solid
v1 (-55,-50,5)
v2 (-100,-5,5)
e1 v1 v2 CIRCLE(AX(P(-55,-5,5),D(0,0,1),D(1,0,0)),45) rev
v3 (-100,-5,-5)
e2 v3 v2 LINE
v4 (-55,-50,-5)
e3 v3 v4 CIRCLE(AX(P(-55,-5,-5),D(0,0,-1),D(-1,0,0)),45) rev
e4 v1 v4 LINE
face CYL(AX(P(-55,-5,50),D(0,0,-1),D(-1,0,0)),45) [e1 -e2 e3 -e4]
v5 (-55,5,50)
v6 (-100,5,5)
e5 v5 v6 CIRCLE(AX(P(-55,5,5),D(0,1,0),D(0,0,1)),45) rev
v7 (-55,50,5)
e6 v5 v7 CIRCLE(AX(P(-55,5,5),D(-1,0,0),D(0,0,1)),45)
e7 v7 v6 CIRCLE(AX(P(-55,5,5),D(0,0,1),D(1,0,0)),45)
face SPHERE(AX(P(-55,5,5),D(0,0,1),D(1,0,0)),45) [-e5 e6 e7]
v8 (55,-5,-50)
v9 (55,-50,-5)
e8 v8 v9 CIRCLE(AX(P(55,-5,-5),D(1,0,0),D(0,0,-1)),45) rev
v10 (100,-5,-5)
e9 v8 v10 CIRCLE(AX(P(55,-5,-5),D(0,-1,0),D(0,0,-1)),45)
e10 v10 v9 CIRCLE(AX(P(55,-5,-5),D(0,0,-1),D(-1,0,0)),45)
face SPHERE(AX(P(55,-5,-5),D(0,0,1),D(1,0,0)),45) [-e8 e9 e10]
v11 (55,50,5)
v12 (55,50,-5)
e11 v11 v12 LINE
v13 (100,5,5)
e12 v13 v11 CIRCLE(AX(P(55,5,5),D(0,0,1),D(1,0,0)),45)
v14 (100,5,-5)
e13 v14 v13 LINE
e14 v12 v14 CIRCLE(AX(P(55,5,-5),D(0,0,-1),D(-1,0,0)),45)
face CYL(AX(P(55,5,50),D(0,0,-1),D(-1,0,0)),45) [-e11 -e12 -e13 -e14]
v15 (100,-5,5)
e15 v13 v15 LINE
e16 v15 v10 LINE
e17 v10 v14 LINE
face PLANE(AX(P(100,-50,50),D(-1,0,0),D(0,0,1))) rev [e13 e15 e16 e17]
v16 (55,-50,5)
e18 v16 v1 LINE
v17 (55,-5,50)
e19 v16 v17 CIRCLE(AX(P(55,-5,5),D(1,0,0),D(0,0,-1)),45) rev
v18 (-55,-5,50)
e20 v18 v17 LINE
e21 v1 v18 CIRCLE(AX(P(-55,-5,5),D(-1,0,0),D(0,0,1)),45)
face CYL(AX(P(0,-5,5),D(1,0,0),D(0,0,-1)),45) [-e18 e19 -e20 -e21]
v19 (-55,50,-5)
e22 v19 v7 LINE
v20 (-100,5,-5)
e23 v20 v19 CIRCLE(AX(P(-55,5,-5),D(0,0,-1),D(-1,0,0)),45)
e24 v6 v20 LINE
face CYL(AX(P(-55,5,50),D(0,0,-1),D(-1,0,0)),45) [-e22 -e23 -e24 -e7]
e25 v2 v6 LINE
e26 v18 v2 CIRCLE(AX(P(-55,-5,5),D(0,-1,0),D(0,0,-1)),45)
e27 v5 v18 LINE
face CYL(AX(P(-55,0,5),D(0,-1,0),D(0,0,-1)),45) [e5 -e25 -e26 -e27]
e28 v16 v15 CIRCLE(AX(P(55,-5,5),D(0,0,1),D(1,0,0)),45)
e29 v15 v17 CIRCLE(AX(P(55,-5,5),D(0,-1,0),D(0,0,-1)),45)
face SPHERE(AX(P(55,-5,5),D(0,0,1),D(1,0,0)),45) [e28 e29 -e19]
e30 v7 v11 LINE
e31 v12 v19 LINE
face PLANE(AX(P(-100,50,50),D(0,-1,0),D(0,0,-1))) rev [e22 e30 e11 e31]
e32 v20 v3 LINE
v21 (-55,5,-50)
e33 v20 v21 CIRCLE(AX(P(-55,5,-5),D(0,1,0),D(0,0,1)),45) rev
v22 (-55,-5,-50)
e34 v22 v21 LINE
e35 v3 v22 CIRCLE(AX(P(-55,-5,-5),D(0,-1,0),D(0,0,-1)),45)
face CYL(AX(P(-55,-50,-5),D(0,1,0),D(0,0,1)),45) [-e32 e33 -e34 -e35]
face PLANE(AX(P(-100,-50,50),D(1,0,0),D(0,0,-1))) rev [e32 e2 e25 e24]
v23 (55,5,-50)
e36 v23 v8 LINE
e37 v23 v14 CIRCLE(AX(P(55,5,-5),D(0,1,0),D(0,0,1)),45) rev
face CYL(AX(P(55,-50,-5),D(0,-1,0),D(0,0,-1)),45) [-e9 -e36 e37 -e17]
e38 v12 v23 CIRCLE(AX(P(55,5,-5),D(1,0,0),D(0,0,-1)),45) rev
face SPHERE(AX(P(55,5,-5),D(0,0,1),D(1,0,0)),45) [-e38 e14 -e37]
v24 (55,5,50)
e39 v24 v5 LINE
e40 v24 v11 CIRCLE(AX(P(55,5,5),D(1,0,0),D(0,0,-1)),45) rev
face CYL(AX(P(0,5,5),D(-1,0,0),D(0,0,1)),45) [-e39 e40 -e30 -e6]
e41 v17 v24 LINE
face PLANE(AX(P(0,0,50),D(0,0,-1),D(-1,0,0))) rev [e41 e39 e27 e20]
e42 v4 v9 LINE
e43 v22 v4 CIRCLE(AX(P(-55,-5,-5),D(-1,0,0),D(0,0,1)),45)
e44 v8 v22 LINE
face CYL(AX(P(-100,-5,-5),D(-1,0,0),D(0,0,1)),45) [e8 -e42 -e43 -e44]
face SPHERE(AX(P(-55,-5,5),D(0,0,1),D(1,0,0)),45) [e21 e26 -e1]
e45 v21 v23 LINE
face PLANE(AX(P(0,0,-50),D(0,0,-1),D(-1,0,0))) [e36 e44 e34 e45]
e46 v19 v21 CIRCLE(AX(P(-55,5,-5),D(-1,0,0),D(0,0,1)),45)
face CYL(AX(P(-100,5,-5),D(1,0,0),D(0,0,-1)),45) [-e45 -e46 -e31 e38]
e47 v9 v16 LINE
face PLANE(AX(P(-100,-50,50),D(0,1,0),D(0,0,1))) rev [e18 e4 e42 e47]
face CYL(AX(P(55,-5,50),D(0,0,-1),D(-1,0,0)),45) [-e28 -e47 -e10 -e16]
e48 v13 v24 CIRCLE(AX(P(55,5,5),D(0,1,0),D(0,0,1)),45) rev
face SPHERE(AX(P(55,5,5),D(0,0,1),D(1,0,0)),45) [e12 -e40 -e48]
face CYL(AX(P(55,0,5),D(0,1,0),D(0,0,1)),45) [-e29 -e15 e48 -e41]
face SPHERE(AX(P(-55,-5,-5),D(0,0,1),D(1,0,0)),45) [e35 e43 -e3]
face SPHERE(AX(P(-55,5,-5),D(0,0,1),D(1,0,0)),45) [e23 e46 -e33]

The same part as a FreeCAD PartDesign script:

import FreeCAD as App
import Part
import Sketcher

V = App.Vector
Q = App.Units.Quantity

doc = App.newDocument("Part")
body = doc.addObject("PartDesign::Body", "Body")

sketch1 = body.newObject("Sketcher::SketchObject", "Sketch")
sketch1.AttachmentSupport = (doc.getObject("XY_Plane"), [""])
sketch1.MapMode = "FlatFace"
sketch1.addGeometry([
    Part.LineSegment(V(-100, 50, 0), V(-100, -50, 0)),
    Part.LineSegment(V(-100, -50, 0), V(100, -50, 0)),
    Part.LineSegment(V(100, -50, 0), V(100, 50, 0)),
    Part.LineSegment(V(100, 50, 0), V(-100, 50, 0)),
], False)
sketch1.addConstraint([
    Sketcher.Constraint("Coincident", 0, 2, 1, 1),
    Sketcher.Constraint("Coincident", 1, 2, 2, 1),
    Sketcher.Constraint("Coincident", 2, 2, 3, 1),
    Sketcher.Constraint("Coincident", 3, 2, 0, 1),
    Sketcher.Constraint("Vertical", 0),
    Sketcher.Constraint("Horizontal", 1),
    Sketcher.Constraint("Vertical", 2),
    Sketcher.Constraint("Horizontal", 3),
    Sketcher.Constraint("Symmetric", 0, 2, 2, 2, -1, 1),
    Sketcher.Constraint("DistanceX", 1, 1, 1, 2, Q("200 mm")),
    Sketcher.Constraint("DistanceY", 0, 2, 0, 1, Q("100 mm")),
])
pad1 = body.newObject("PartDesign::Pad", "Pad")
pad1.Profile = sketch1
pad1.Length = 100
pad1.Midplane = True
doc.recompute()

fillet = body.newObject("PartDesign::Fillet", "Fillet")
fillet.Base = (pad1, ["Edge1"])
fillet.UseAllEdges = True
fillet.Radius = 45

doc.recompute()
